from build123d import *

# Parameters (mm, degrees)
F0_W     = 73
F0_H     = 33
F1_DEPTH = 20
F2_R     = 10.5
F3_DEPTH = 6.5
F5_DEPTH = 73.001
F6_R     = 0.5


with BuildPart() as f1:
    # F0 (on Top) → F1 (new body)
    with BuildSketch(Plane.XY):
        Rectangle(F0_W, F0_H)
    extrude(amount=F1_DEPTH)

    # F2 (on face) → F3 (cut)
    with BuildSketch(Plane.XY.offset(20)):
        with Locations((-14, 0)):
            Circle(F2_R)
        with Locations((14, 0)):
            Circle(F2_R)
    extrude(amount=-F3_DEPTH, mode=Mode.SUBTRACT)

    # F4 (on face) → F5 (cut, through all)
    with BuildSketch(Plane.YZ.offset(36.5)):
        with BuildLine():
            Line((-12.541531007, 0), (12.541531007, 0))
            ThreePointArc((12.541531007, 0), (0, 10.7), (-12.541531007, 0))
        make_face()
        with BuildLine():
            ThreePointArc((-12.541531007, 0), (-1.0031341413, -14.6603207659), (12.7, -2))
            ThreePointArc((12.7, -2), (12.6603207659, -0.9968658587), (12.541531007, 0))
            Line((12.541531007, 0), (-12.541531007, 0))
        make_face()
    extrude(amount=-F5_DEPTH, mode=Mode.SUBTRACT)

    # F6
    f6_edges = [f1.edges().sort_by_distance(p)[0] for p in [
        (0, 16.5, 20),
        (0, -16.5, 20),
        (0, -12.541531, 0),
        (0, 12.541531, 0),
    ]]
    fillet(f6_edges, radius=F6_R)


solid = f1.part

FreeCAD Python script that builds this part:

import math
import FreeCAD as App
import Part
import Sketcher

V = App.Vector
Q = App.Units.Quantity


def edges_at(feature, points):
    """Names of the edges that pass closest to the given points."""
    edges = feature.Shape.Edges
    near = lambda p: min(range(len(edges)), key=lambda i: edges[i].distToShape(Part.Vertex(*p))[0])
    return sorted({f"Edge{near(p) + 1}" for p in points})

doc = App.newDocument("Part")
body = doc.addObject("PartDesign::Body", "Body")

# Sketch on XY plane
sketch1 = doc.addObject("Sketcher::SketchObject", "Sketch")
body.addObject(sketch1)
sketch1.AttachmentSupport = (doc.XY_Plane, [""])
sketch1.MapMode = "FlatFace"
sketch1.addGeometry(Part.LineSegment(V(-36, 16, 0), V(-36, -16, 0)), False)
sketch1.addGeometry(Part.LineSegment(V(-36, -16, 0), V(36, -16, 0)), False)
sketch1.addGeometry(Part.LineSegment(V(36, -16, 0), V(36, 16, 0)), False)
sketch1.addGeometry(Part.LineSegment(V(36, 16, 0), V(-36, 16, 0)), False)
sketch1.addConstraint(Sketcher.Constraint("Coincident", 0, 2, 1, 1))
sketch1.addConstraint(Sketcher.Constraint("Coincident", 1, 2, 2, 1))
sketch1.addConstraint(Sketcher.Constraint("Coincident", 2, 2, 3, 1))
sketch1.addConstraint(Sketcher.Constraint("Coincident", 3, 2, 0, 1))
sketch1.addConstraint(Sketcher.Constraint("Vertical", 0))
sketch1.addConstraint(Sketcher.Constraint("Horizontal", 1))
sketch1.addConstraint(Sketcher.Constraint("Vertical", 2))
sketch1.addConstraint(Sketcher.Constraint("Horizontal", 3))
sketch1.addConstraint(Sketcher.Constraint("Symmetric", 0, 2, 2, 2, -1, 1))
sketch1.addConstraint(Sketcher.Constraint("DistanceX", 1, 1, 1, 2, Q("73 mm")))
sketch1.addConstraint(Sketcher.Constraint("DistanceY", 0, 2, 0, 1, Q("33 mm")))
pad1 = doc.addObject("PartDesign::Pad", "Pad")
body.addObject(pad1)
pad1.Profile = sketch1
pad1.Length = 20

# Sketch on XY plane
sketch2 = doc.addObject("Sketcher::SketchObject", "Sketch001")
body.addObject(sketch2)
sketch2.AttachmentSupport = (doc.XY_Plane, [""])
sketch2.MapMode = "FlatFace"
sketch2.AttachmentOffset = App.Placement(V(0, 0, 20), App.Rotation())
sketch2.addGeometry(Part.Circle(V(-14, 0, 0), V(0, 0, 1), 10), False)
sketch2.addGeometry(Part.Circle(V(14, 0, 0), V(0, 0, 1), 10), False)
sketch2.addConstraint(Sketcher.Constraint("Equal", 0, 1))
sketch2.addConstraint(Sketcher.Constraint("Symmetric", 0, 3, 1, 3, -1, 1))
sketch2.addConstraint(Sketcher.Constraint("PointOnObject", 0, 3, -1))
sketch2.addConstraint(Sketcher.Constraint("Diameter", 0, Q("21 mm")))
sketch2.addConstraint(Sketcher.Constraint("DistanceX", 0, 3, -1, 1, Q("14 mm")))
pocket1 = doc.addObject("PartDesign::Pocket", "Pocket")
body.addObject(pocket1)
pocket1.Profile = sketch2
pocket1.Length = 6.5

# Sketch on YZ plane
sketch3 = doc.addObject("Sketcher::SketchObject", "Sketch002")
body.addObject(sketch3)
sketch3.AttachmentSupport = (doc.YZ_Plane, [""])
sketch3.MapMode = "FlatFace"
sketch3.AttachmentOffset = App.Placement(V(0, 0, 36.5), App.Rotation())
sketch3.addGeometry(Part.ArcOfCircle(Part.Circle(V(0, -2, 0), V(0, 0, 1), 12.7), math.radians(9), math.radians(171)), False)
sketch3.addGeometry(Part.ArcOfCircle(Part.Circle(V(0, -2, 0), V(0, 0, 1), 12.7), math.radians(171), math.radians(360)), False)
sketch3.addGeometry(Part.ArcOfCircle(Part.Circle(V(0, -2, 0), V(0, 0, 1), 12.7), math.radians(0), math.radians(9.06)), False)
sketch3.addConstraint(Sketcher.Constraint("Tangent", 0, 2, 1, 1))
sketch3.addConstraint(Sketcher.Constraint("Tangent", 1, 2, 2, 1))
sketch3.addConstraint(Sketcher.Constraint("Tangent", 2, 2, 0, 1))
sketch3.addConstraint(Sketcher.Constraint("Symmetric", 0, 2, 2, 2, -1, 1))
sketch3.addConstraint(Sketcher.Constraint("PointOnObject", 0, 3, -2))
sketch3.addConstraint(Sketcher.Constraint("Horizontal", 2, 3, 1, 2))
sketch3.addConstraint(Sketcher.Constraint("Radius", 0, Q("12.7 mm")))
sketch3.addConstraint(Sketcher.Constraint("DistanceY", 0, 3, -1, 1, Q("2 mm")))
pocket2 = doc.addObject("PartDesign::Pocket", "Pocket001")
body.addObject(pocket2)
pocket2.Profile = sketch3
pocket2.Type = "ThroughAll"
doc.recompute()

fillet = doc.addObject("PartDesign::Fillet", "Fillet")
body.addObject(fillet)
fillet.Base = (pocket2, edges_at(pocket2, [
    (0, 16.5, 20),
    (0, -16.5, 20),
    (0, -12.542, 0),
    (0, 12.542, 0),
]))
fillet.Radius = 0.5

doc.recompute()
